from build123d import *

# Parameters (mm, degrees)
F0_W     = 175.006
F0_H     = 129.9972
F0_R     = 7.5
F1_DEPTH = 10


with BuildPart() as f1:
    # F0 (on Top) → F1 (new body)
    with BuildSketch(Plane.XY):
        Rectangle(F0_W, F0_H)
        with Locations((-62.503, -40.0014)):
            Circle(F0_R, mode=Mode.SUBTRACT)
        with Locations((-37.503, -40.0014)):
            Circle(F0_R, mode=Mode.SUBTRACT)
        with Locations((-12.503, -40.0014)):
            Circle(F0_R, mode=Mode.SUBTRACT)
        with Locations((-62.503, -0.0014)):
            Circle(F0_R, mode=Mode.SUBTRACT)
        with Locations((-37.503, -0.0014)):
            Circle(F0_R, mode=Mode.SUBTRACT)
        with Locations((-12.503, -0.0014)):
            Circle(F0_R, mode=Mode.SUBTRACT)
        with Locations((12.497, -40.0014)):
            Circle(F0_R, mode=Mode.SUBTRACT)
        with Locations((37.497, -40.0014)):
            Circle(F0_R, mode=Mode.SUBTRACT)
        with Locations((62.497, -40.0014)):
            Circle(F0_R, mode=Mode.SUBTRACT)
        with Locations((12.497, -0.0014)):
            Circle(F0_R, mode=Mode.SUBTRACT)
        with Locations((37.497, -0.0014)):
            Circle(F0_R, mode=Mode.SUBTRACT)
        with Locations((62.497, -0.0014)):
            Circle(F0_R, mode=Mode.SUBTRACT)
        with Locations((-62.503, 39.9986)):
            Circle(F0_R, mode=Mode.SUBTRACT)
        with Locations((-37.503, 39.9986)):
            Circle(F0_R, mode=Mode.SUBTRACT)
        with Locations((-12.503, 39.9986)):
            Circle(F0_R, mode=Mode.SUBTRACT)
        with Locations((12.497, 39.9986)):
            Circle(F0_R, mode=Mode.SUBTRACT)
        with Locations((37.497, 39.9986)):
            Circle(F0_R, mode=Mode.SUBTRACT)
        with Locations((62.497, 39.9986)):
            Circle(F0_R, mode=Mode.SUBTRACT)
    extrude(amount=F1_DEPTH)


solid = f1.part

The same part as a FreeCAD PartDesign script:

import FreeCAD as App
import Part
import Sketcher

doc = App.newDocument("Part")
body = doc.addObject("PartDesign::Body", "Body")

# Sketch on XY plane
sketch1 = body.newObject("Sketcher::SketchObject", "Sketch")
sketch1.AttachmentSupport = (doc.getObject("XY_Plane"), [""])
sketch1.MapMode = "FlatFace"
sketch1.addGeometry(Part.LineSegment(App.Vector(-88, 65, 0), App.Vector(-88, -65, 0)), False)
sketch1.addGeometry(Part.LineSegment(App.Vector(-88, -65, 0), App.Vector(88, -65, 0)), False)
sketch1.addGeometry(Part.LineSegment(App.Vector(88, -65, 0), App.Vector(88, 65, 0)), False)
sketch1.addGeometry(Part.LineSegment(App.Vector(88, 65, 0), App.Vector(-88, 65, 0)), False)
sketch1.addGeometry(Part.Circle(App.Vector(-63, -40, 0), App.Vector(0, 0, 1), 8), False)
sketch1.addGeometry(Part.Circle(App.Vector(-38, -40, 0), App.Vector(0, 0, 1), 8), False)
sketch1.addGeometry(Part.Circle(App.Vector(-13, -40, 0), App.Vector(0, 0, 1), 8), False)
sketch1.addGeometry(Part.Circle(App.Vector(12, -40, 0), App.Vector(0, 0, 1), 8), False)
sketch1.addGeometry(Part.Circle(App.Vector(37, -40, 0), App.Vector(0, 0, 1), 8), False)
sketch1.addGeometry(Part.Circle(App.Vector(62, -40, 0), App.Vector(0, 0, 1), 8), False)
sketch1.addGeometry(Part.Circle(App.Vector(-63, 0, 0), App.Vector(0, 0, 1), 8), False)
sketch1.addGeometry(Part.Circle(App.Vector(-38, 0, 0), App.Vector(0, 0, 1), 8), False)
sketch1.addGeometry(Part.Circle(App.Vector(-13, 0, 0), App.Vector(0, 0, 1), 8), False)
sketch1.addGeometry(Part.Circle(App.Vector(-63, 40, 0), App.Vector(0, 0, 1), 8), False)
sketch1.addGeometry(Part.Circle(App.Vector(-38, 40, 0), App.Vector(0, 0, 1), 8), False)
sketch1.addGeometry(Part.Circle(App.Vector(-13, 40, 0), App.Vector(0, 0, 1), 8), False)
sketch1.addGeometry(Part.Circle(App.Vector(12, 0, 0), App.Vector(0, 0, 1), 8), False)
sketch1.addGeometry(Part.Circle(App.Vector(37, 0, 0), App.Vector(0, 0, 1), 8), False)
sketch1.addGeometry(Part.Circle(App.Vector(62, 0, 0), App.Vector(0, 0, 1), 8), False)
sketch1.addGeometry(Part.Circle(App.Vector(12, 40, 0), App.Vector(0, 0, 1), 8), False)
sketch1.addGeometry(Part.Circle(App.Vector(37, 40, 0), App.Vector(0, 0, 1), 8), False)
sketch1.addGeometry(Part.Circle(App.Vector(62, 40, 0), App.Vector(0, 0, 1), 8), False)
sketch1.addConstraint(Sketcher.Constraint("Coincident", 0, 2, 1, 1))
sketch1.addConstraint(Sketcher.Constraint("Coincident", 1, 2, 2, 1))
sketch1.addConstraint(Sketcher.Constraint("Coincident", 2, 2, 3, 1))
sketch1.addConstraint(Sketcher.Constraint("Coincident", 3, 2, 0, 1))
sketch1.addConstraint(Sketcher.Constraint("Vertical", 0))
sketch1.addConstraint(Sketcher.Constraint("Horizontal", 1))
sketch1.addConstraint(Sketcher.Constraint("Vertical", 2))
sketch1.addConstraint(Sketcher.Constraint("Horizontal", 3))
sketch1.addConstraint(Sketcher.Constraint("Equal", 4, 5))
sketch1.addConstraint(Sketcher.Constraint("Equal", 5, 6))
sketch1.addConstraint(Sketcher.Constraint("Equal", 6, 7))
sketch1.addConstraint(Sketcher.Constraint("Equal", 7, 8))
sketch1.addConstraint(Sketcher.Constraint("Equal", 8, 9))
sketch1.addConstraint(Sketcher.Constraint("Equal", 9, 10))
sketch1.addConstraint(Sketcher.Constraint("Equal", 10, 11))
sketch1.addConstraint(Sketcher.Constraint("Equal", 11, 12))
sketch1.addConstraint(Sketcher.Constraint("Equal", 12, 13))
sketch1.addConstraint(Sketcher.Constraint("Equal", 13, 14))
sketch1.addConstraint(Sketcher.Constraint("Equal", 14, 15))
sketch1.addConstraint(Sketcher.Constraint("Equal", 15, 16))
sketch1.addConstraint(Sketcher.Constraint("Equal", 16, 17))
sketch1.addConstraint(Sketcher.Constraint("Equal", 17, 18))
sketch1.addConstraint(Sketcher.Constraint("Equal", 18, 19))
sketch1.addConstraint(Sketcher.Constraint("Equal", 19, 20))
sketch1.addConstraint(Sketcher.Constraint("Equal", 20, 21))
sketch1.addConstraint(Sketcher.Constraint("Symmetric", 0, 2, 2, 2, -1, 1))
sketch1.addConstraint(Sketcher.Constraint("Horizontal", 4, 3, 5, 3))
sketch1.addConstraint(Sketcher.Constraint("Horizontal", 5, 3, 6, 3))
sketch1.addConstraint(Sketcher.Constraint("Horizontal", 6, 3, 7, 3))
sketch1.addConstraint(Sketcher.Constraint("Horizontal", 7, 3, 8, 3))
sketch1.addConstraint(Sketcher.Constraint("Horizontal", 8, 3, 9, 3))
sketch1.addConstraint(Sketcher.Constraint("Horizontal", 10, 3, 11, 3))
sketch1.addConstraint(Sketcher.Constraint("Horizontal", 11, 3, 12, 3))
sketch1.addConstraint(Sketcher.Constraint("Horizontal", 13, 3, 14, 3))
sketch1.addConstraint(Sketcher.Constraint("Horizontal", 14, 3, 15, 3))
sketch1.addConstraint(Sketcher.Constraint("Horizontal", 12, 3, 16, 3))
sketch1.addConstraint(Sketcher.Constraint("Horizontal", 16, 3, 17, 3))
sketch1.addConstraint(Sketcher.Constraint("Horizontal", 17, 3, 18, 3))
sketch1.addConstraint(Sketcher.Constraint("Horizontal", 15, 3, 19, 3))
sketch1.addConstraint(Sketcher.Constraint("Horizontal", 19, 3, 20, 3))
sketch1.addConstraint(Sketcher.Constraint("Horizontal", 20, 3, 21, 3))
sketch1.addConstraint(Sketcher.Constraint("Vertical", 4, 3, 10, 3))
sketch1.addConstraint(Sketcher.Constraint("Vertical", 5, 3, 11, 3))
sketch1.addConstraint(Sketcher.Constraint("Vertical", 6, 3, 12, 3))
sketch1.addConstraint(Sketcher.Constraint("Vertical", 10, 3, 13, 3))
sketch1.addConstraint(Sketcher.Constraint("Vertical", 11, 3, 14, 3))
sketch1.addConstraint(Sketcher.Constraint("Vertical", 12, 3, 15, 3))
sketch1.addConstraint(Sketcher.Constraint("Vertical", 7, 3, 16, 3))
sketch1.addConstraint(Sketcher.Constraint("Vertical", 8, 3, 17, 3))
sketch1.addConstraint(Sketcher.Constraint("Vertical", 9, 3, 18, 3))
sketch1.addConstraint(Sketcher.Constraint("Vertical", 16, 3, 19, 3))
sketch1.addConstraint(Sketcher.Constraint("Vertical", 17, 3, 20, 3))
sketch1.addConstraint(Sketcher.Constraint("Vertical", 18, 3, 21, 3))
sketch1.addConstraint(Sketcher.Constraint("Diameter", 4, 15.0))
sketch1.addConstraint(Sketcher.Constraint("DistanceX", 4, 3, 5, 3, 25.0))
sketch1.addConstraint(Sketcher.Constraint("DistanceX", 5, 3, 6, 3, 25.0))
sketch1.addConstraint(Sketcher.Constraint("DistanceX", 6, 3, 7, 3, 25.0))
sketch1.addConstraint(Sketcher.Constraint("DistanceX", 7, 3, 8, 3, 25.0))
sketch1.addConstraint(Sketcher.Constraint("DistanceX", 8, 3, 9, 3, 25.0))
sketch1.addConstraint(Sketcher.Constraint("DistanceY", 4, 3, 10, 3, 40.0))
sketch1.addConstraint(Sketcher.Constraint("DistanceY", 10, 3, 13, 3, 40.0))
sketch1.addConstraint(Sketcher.Constraint("DistanceX", 0, 2, 4, 3, 25.0))
sketch1.addConstraint(Sketcher.Constraint("DistanceY", 21, 3, 2, 2, 25.0))
sketch1.addConstraint(Sketcher.Constraint("DistanceX", 1, 1, 1, 2, 175.006))
sketch1.addConstraint(Sketcher.Constraint("DistanceY", 0, 2, 0, 1, 129.9972))
pad1 = body.newObject("PartDesign::Pad", "Pad")
pad1.Profile = sketch1
pad1.Length = 10

doc.recompute()
